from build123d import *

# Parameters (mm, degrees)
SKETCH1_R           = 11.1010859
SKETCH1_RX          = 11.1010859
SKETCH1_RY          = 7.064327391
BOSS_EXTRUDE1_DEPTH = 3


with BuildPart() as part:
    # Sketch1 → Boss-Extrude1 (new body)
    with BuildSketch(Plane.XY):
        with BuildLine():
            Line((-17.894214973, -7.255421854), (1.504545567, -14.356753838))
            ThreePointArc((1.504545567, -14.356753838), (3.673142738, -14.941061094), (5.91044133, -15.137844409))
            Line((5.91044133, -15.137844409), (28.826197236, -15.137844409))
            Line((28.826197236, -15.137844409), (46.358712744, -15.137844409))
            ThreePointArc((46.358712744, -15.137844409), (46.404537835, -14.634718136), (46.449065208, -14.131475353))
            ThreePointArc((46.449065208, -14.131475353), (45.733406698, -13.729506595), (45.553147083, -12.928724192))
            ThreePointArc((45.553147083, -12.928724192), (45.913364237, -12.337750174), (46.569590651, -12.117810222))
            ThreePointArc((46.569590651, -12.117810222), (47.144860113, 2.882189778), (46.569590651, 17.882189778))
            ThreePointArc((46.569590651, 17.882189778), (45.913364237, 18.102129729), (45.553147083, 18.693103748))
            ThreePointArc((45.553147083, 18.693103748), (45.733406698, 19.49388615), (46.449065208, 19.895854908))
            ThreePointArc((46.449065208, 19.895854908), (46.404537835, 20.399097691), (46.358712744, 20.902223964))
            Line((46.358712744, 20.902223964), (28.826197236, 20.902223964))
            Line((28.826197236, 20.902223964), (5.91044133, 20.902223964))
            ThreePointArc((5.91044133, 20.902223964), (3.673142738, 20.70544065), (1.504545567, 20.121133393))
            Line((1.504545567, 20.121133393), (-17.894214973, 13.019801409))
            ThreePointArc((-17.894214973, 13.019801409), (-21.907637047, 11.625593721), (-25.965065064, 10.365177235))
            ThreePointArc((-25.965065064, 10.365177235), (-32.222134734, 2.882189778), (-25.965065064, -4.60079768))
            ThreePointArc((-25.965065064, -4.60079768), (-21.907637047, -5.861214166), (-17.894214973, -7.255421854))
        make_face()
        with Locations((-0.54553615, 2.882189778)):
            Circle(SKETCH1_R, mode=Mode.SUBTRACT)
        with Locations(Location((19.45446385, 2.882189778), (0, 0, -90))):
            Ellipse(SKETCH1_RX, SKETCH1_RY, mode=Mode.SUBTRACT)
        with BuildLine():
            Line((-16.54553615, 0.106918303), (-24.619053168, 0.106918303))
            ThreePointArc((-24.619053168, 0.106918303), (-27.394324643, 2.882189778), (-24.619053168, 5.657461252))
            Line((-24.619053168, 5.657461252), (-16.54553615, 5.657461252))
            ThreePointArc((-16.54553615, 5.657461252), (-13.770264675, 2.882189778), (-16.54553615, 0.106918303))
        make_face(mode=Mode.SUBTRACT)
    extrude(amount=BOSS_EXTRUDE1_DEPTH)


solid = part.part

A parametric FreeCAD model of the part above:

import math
import FreeCAD as App
import Part
import Sketcher

doc = App.newDocument("Part")
body = doc.addObject("PartDesign::Body", "Body")

# Sketch on XY plane
sketch1 = body.newObject("Sketcher::SketchObject", "Sketch")
sketch1.AttachmentSupport = (doc.getObject("XY_Plane"), [""])
sketch1.MapMode = "FlatFace"
sketch1.addGeometry([
    Part.LineSegment(App.Vector(-17.894215, -7.255422, 0), App.Vector(1.504546, -14.356754, 0)),  # 0
    Part.ArcOfCircle(Part.Circle(App.Vector(5.910441, -2.321136, 0), App.Vector(0, 0, 1), 12.816708), math.radians(-110.106235), math.radians(-90)),  # 1
    Part.LineSegment(App.Vector(5.910441, -15.137844, 0), App.Vector(46.358713, -15.137844, 0)),  # 2
    Part.ArcOfCircle(Part.Circle(App.Vector(-148.703405, 2.882199, 0), App.Vector(0, 0, 1), 195.892705), math.radians(-5.278064), math.radians(-4.982531)),  # 3
    Part.ArcOfCircle(Part.Circle(App.Vector(46.542739, -13.126643, 0), App.Vector(0, 0, 1), 1.00919), math.radians(168.690068), math.radians(264.674097)),  # 4
    Part.ArcOfCircle(Part.Circle(App.Vector(46.542739, -13.126643, 0), App.Vector(0, 0, 1), 1.00919), math.radians(88.475339), math.radians(168.690067)),  # 5
    Part.ArcOfCircle(Part.Circle(App.Vector(-148.703303, 2.88219, 0), App.Vector(0, 0, 1), 195.848163), math.radians(-4.392582), math.radians(4.392582)),  # 6
    Part.ArcOfCircle(Part.Circle(App.Vector(46.542739, 18.891022, 0), App.Vector(0, 0, 1), 1.00919), math.radians(-168.690068), math.radians(-88.475339)),  # 7
    Part.ArcOfCircle(Part.Circle(App.Vector(46.542739, 18.891022, 0), App.Vector(0, 0, 1), 1.00919), math.radians(95.325903), math.radians(191.309932)),  # 8
    Part.ArcOfCircle(Part.Circle(App.Vector(-148.703405, 2.882181, 0), App.Vector(0, 0, 1), 195.892705), math.radians(4.982531), math.radians(5.278064)),  # 9
    Part.LineSegment(App.Vector(46.358713, 20.902224, 0), App.Vector(5.910441, 20.902224, 0)),  # 10
    Part.ArcOfCircle(Part.Circle(App.Vector(5.910441, 8.085516, 0), App.Vector(0, 0, 1), 12.816708), math.radians(90), math.radians(110.106235)),  # 11
    Part.LineSegment(App.Vector(1.504546, 20.121133, 0), App.Vector(-17.894215, 13.019801, 0)),  # 12
    Part.ArcOfCircle(Part.Circle(App.Vector(-61.953173, 133.375978, 0), App.Vector(0, 0, 1), 128.167082), math.radians(-73.692606), math.radians(-69.893765)),  # 13
    Part.ArcOfCircle(Part.Circle(App.Vector(-24.619053, 2.88219, 0), App.Vector(0, 0, 1), 7.603082), math.radians(100.197107), math.radians(259.802893)),  # 14
    Part.ArcOfCircle(Part.Circle(App.Vector(-61.953173, -127.611599, 0), App.Vector(0, 0, 1), 128.167082), math.radians(69.893765), math.radians(73.692606)),  # 15
    Part.ArcOfCircle(Part.Circle(App.Vector(-16.545536, 2.88219, 0), App.Vector(0, 0, 1), 2.775271), math.radians(-90), math.radians(90)),  # 16
    Part.LineSegment(App.Vector(-16.545536, 0.106918, 0), App.Vector(-24.619053, 0.106918, 0)),  # 17
    Part.ArcOfCircle(Part.Circle(App.Vector(-24.619053, 2.88219, 0), App.Vector(0, 0, 1), 2.775271), math.radians(90), math.radians(270)),  # 18
    Part.LineSegment(App.Vector(-24.619053, 5.657461, 0), App.Vector(-16.545536, 5.657461, 0)),  # 19
    Part.Circle(App.Vector(-0.545536, 2.88219, 0), App.Vector(0, 0, 1), 11.101086),  # 20
    Part.Ellipse(App.Vector(19.454464, -8.218896, 0), App.Vector(26.518791, 2.88219, 0), App.Vector(19.454464, 2.88219, 0)),  # 21
], False)
sketch1.addConstraint([
    Sketcher.Constraint("Block", 21),
    Sketcher.Constraint("Coincident", 0, 2, 1, 1),
    Sketcher.Constraint("Coincident", 1, 2, 2, 1),
    Sketcher.Constraint("Coincident", 2, 2, 3, 1),
    Sketcher.Constraint("Coincident", 3, 2, 4, 2),
    Sketcher.Constraint("Coincident", 4, 1, 5, 2),
    Sketcher.Constraint("Coincident", 5, 1, 6, 1),
    Sketcher.Constraint("Coincident", 6, 2, 7, 2),
    Sketcher.Constraint("Coincident", 7, 1, 8, 2),
    Sketcher.Constraint("Coincident", 8, 1, 9, 1),
    Sketcher.Constraint("Coincident", 9, 2, 10, 1),
    Sketcher.Constraint("Coincident", 10, 2, 11, 1),
    Sketcher.Constraint("Coincident", 11, 2, 12, 1),
    Sketcher.Constraint("Coincident", 12, 2, 13, 2),
    Sketcher.Constraint("Coincident", 13, 1, 14, 1),
    Sketcher.Constraint("Coincident", 14, 2, 15, 2),
    Sketcher.Constraint("Coincident", 15, 1, 0, 1),
    Sketcher.Constraint("Coincident", 16, 1, 17, 1),
    Sketcher.Constraint("Coincident", 17, 2, 18, 2),
    Sketcher.Constraint("Coincident", 18, 1, 19, 1),
    Sketcher.Constraint("Coincident", 19, 2, 16, 2),
    Sketcher.Constraint("Horizontal", 2),
    Sketcher.Constraint("Horizontal", 10),
    Sketcher.Constraint("Horizontal", 17),
    Sketcher.Constraint("Horizontal", 19),
    Sketcher.Constraint("Coincident", 5, 3, 4, 3),
    Sketcher.Constraint("Coincident", 8, 3, 7, 3),
    Sketcher.Constraint("Coincident", 18, 3, 14, 3),
    Sketcher.Constraint("DistanceX", 16, 3, 20, 3, 16.0),
    Sketcher.Constraint("DistanceY", 5, 1, 6, 2, 30.0),
    Sketcher.Constraint("Diameter", 20, 22.202172),
    Sketcher.Constraint("Radius", 1, 12.816708),
    Sketcher.Constraint("Radius", 4, 1.00919),
    Sketcher.Constraint("Radius", 7, 1.00919),
    Sketcher.Constraint("Radius", 11, 12.816708),
    Sketcher.Constraint("Radius", 14, 7.603082),
    Sketcher.Constraint("Radius", 16, 2.775271),
    Sketcher.Constraint("Radius", 3, 195.892705),
    Sketcher.Constraint("Radius", 6, 195.848163),
    Sketcher.Constraint("Radius", 9, 195.892705),
    Sketcher.Constraint("Radius", 13, 128.167082),
    Sketcher.Constraint("Radius", 15, 128.167082),
    Sketcher.Constraint("DistanceX", 2, 1, 2, 2, 40.448271),
    Sketcher.Constraint("DistanceX", 10, 2, 10, 1, 40.448271),
    Sketcher.Constraint("DistanceY", -1, 1, 3, 3, 2.882199),
    Sketcher.Constraint("DistanceY", 15, 3, -1, 1, 127.611599),
    Sketcher.Constraint("DistanceY", -1, 1, 12, 2, 13.019801),
    Sketcher.Constraint("DistanceX", 14, 3, 0, 2, 26.123599),
    Sketcher.Constraint("DistanceY", 2, 2, 5, 3, 2.011202),
    Sketcher.Constraint("DistanceY", 7, 3, 9, 2, 2.011202),
    Sketcher.Constraint("DistanceY", 14, 2, 12, 2, 17.620599),
    Sketcher.Constraint("DistanceY", 15, 1, 13, 1, 17.620599),
    Sketcher.Constraint("DistanceX", 17, 2, 17, 1, 8.073517),
    Sketcher.Constraint("DistanceX", 19, 1, 19, 2, 8.073517),
    Sketcher.Constraint("DistanceX", -1, 1, 1, 3, 5.910441),
    Sketcher.Constraint("DistanceX", -1, 1, 4, 3, 46.542739),
    Sketcher.Constraint("DistanceY", -1, 1, 6, 3, 2.88219),
    Sketcher.Constraint("DistanceX", -1, 1, 7, 3, 46.542739),
    Sketcher.Constraint("DistanceY", -1, 1, 9, 3, 2.882181),
    Sketcher.Constraint("DistanceX", -1, 1, 11, 3, 5.910441),
    Sketcher.Constraint("DistanceY", -1, 1, 13, 3, 133.375978),
    Sketcher.Constraint("DistanceY", -1, 1, 14, 3, 2.88219),
    Sketcher.Constraint("DistanceY", -1, 1, 20, 3, 2.88219),
    Sketcher.Constraint("DistanceX", -1, 1, 1, 2, 5.910441),
    Sketcher.Constraint("DistanceX", -1, 1, 5, 1, 46.569591),
    Sketcher.Constraint("DistanceY", 5, 1, -1, 1, 12.11781),
    Sketcher.Constraint("DistanceX", -1, 1, 10, 2, 5.910441),
    Sketcher.Constraint("DistanceY", 15, 1, -1, 1, 7.255422),
    Sketcher.Constraint("DistanceX", 6, 3, 13, 3, 86.750131),
    Sketcher.Constraint("DistanceX", 20, 3, 0, 2, 2.050082),
    Sketcher.Constraint("DistanceX", 4, 1, 4, 3, 0.989592),
    Sketcher.Constraint("DistanceX", 7, 1, 7, 3, 0.989592),
    Sketcher.Constraint("DistanceY", 11, 2, 10, 2, 0.781091),
    Sketcher.Constraint("DistanceX", 15, 1, 16, 1, 1.348679),
    Sketcher.Constraint("DistanceX", 13, 1, 18, 1, 1.346012),
])
pad1 = body.newObject("PartDesign::Pad", "Pad")
pad1.Profile = sketch1
pad1.Length = 3

doc.recompute()
